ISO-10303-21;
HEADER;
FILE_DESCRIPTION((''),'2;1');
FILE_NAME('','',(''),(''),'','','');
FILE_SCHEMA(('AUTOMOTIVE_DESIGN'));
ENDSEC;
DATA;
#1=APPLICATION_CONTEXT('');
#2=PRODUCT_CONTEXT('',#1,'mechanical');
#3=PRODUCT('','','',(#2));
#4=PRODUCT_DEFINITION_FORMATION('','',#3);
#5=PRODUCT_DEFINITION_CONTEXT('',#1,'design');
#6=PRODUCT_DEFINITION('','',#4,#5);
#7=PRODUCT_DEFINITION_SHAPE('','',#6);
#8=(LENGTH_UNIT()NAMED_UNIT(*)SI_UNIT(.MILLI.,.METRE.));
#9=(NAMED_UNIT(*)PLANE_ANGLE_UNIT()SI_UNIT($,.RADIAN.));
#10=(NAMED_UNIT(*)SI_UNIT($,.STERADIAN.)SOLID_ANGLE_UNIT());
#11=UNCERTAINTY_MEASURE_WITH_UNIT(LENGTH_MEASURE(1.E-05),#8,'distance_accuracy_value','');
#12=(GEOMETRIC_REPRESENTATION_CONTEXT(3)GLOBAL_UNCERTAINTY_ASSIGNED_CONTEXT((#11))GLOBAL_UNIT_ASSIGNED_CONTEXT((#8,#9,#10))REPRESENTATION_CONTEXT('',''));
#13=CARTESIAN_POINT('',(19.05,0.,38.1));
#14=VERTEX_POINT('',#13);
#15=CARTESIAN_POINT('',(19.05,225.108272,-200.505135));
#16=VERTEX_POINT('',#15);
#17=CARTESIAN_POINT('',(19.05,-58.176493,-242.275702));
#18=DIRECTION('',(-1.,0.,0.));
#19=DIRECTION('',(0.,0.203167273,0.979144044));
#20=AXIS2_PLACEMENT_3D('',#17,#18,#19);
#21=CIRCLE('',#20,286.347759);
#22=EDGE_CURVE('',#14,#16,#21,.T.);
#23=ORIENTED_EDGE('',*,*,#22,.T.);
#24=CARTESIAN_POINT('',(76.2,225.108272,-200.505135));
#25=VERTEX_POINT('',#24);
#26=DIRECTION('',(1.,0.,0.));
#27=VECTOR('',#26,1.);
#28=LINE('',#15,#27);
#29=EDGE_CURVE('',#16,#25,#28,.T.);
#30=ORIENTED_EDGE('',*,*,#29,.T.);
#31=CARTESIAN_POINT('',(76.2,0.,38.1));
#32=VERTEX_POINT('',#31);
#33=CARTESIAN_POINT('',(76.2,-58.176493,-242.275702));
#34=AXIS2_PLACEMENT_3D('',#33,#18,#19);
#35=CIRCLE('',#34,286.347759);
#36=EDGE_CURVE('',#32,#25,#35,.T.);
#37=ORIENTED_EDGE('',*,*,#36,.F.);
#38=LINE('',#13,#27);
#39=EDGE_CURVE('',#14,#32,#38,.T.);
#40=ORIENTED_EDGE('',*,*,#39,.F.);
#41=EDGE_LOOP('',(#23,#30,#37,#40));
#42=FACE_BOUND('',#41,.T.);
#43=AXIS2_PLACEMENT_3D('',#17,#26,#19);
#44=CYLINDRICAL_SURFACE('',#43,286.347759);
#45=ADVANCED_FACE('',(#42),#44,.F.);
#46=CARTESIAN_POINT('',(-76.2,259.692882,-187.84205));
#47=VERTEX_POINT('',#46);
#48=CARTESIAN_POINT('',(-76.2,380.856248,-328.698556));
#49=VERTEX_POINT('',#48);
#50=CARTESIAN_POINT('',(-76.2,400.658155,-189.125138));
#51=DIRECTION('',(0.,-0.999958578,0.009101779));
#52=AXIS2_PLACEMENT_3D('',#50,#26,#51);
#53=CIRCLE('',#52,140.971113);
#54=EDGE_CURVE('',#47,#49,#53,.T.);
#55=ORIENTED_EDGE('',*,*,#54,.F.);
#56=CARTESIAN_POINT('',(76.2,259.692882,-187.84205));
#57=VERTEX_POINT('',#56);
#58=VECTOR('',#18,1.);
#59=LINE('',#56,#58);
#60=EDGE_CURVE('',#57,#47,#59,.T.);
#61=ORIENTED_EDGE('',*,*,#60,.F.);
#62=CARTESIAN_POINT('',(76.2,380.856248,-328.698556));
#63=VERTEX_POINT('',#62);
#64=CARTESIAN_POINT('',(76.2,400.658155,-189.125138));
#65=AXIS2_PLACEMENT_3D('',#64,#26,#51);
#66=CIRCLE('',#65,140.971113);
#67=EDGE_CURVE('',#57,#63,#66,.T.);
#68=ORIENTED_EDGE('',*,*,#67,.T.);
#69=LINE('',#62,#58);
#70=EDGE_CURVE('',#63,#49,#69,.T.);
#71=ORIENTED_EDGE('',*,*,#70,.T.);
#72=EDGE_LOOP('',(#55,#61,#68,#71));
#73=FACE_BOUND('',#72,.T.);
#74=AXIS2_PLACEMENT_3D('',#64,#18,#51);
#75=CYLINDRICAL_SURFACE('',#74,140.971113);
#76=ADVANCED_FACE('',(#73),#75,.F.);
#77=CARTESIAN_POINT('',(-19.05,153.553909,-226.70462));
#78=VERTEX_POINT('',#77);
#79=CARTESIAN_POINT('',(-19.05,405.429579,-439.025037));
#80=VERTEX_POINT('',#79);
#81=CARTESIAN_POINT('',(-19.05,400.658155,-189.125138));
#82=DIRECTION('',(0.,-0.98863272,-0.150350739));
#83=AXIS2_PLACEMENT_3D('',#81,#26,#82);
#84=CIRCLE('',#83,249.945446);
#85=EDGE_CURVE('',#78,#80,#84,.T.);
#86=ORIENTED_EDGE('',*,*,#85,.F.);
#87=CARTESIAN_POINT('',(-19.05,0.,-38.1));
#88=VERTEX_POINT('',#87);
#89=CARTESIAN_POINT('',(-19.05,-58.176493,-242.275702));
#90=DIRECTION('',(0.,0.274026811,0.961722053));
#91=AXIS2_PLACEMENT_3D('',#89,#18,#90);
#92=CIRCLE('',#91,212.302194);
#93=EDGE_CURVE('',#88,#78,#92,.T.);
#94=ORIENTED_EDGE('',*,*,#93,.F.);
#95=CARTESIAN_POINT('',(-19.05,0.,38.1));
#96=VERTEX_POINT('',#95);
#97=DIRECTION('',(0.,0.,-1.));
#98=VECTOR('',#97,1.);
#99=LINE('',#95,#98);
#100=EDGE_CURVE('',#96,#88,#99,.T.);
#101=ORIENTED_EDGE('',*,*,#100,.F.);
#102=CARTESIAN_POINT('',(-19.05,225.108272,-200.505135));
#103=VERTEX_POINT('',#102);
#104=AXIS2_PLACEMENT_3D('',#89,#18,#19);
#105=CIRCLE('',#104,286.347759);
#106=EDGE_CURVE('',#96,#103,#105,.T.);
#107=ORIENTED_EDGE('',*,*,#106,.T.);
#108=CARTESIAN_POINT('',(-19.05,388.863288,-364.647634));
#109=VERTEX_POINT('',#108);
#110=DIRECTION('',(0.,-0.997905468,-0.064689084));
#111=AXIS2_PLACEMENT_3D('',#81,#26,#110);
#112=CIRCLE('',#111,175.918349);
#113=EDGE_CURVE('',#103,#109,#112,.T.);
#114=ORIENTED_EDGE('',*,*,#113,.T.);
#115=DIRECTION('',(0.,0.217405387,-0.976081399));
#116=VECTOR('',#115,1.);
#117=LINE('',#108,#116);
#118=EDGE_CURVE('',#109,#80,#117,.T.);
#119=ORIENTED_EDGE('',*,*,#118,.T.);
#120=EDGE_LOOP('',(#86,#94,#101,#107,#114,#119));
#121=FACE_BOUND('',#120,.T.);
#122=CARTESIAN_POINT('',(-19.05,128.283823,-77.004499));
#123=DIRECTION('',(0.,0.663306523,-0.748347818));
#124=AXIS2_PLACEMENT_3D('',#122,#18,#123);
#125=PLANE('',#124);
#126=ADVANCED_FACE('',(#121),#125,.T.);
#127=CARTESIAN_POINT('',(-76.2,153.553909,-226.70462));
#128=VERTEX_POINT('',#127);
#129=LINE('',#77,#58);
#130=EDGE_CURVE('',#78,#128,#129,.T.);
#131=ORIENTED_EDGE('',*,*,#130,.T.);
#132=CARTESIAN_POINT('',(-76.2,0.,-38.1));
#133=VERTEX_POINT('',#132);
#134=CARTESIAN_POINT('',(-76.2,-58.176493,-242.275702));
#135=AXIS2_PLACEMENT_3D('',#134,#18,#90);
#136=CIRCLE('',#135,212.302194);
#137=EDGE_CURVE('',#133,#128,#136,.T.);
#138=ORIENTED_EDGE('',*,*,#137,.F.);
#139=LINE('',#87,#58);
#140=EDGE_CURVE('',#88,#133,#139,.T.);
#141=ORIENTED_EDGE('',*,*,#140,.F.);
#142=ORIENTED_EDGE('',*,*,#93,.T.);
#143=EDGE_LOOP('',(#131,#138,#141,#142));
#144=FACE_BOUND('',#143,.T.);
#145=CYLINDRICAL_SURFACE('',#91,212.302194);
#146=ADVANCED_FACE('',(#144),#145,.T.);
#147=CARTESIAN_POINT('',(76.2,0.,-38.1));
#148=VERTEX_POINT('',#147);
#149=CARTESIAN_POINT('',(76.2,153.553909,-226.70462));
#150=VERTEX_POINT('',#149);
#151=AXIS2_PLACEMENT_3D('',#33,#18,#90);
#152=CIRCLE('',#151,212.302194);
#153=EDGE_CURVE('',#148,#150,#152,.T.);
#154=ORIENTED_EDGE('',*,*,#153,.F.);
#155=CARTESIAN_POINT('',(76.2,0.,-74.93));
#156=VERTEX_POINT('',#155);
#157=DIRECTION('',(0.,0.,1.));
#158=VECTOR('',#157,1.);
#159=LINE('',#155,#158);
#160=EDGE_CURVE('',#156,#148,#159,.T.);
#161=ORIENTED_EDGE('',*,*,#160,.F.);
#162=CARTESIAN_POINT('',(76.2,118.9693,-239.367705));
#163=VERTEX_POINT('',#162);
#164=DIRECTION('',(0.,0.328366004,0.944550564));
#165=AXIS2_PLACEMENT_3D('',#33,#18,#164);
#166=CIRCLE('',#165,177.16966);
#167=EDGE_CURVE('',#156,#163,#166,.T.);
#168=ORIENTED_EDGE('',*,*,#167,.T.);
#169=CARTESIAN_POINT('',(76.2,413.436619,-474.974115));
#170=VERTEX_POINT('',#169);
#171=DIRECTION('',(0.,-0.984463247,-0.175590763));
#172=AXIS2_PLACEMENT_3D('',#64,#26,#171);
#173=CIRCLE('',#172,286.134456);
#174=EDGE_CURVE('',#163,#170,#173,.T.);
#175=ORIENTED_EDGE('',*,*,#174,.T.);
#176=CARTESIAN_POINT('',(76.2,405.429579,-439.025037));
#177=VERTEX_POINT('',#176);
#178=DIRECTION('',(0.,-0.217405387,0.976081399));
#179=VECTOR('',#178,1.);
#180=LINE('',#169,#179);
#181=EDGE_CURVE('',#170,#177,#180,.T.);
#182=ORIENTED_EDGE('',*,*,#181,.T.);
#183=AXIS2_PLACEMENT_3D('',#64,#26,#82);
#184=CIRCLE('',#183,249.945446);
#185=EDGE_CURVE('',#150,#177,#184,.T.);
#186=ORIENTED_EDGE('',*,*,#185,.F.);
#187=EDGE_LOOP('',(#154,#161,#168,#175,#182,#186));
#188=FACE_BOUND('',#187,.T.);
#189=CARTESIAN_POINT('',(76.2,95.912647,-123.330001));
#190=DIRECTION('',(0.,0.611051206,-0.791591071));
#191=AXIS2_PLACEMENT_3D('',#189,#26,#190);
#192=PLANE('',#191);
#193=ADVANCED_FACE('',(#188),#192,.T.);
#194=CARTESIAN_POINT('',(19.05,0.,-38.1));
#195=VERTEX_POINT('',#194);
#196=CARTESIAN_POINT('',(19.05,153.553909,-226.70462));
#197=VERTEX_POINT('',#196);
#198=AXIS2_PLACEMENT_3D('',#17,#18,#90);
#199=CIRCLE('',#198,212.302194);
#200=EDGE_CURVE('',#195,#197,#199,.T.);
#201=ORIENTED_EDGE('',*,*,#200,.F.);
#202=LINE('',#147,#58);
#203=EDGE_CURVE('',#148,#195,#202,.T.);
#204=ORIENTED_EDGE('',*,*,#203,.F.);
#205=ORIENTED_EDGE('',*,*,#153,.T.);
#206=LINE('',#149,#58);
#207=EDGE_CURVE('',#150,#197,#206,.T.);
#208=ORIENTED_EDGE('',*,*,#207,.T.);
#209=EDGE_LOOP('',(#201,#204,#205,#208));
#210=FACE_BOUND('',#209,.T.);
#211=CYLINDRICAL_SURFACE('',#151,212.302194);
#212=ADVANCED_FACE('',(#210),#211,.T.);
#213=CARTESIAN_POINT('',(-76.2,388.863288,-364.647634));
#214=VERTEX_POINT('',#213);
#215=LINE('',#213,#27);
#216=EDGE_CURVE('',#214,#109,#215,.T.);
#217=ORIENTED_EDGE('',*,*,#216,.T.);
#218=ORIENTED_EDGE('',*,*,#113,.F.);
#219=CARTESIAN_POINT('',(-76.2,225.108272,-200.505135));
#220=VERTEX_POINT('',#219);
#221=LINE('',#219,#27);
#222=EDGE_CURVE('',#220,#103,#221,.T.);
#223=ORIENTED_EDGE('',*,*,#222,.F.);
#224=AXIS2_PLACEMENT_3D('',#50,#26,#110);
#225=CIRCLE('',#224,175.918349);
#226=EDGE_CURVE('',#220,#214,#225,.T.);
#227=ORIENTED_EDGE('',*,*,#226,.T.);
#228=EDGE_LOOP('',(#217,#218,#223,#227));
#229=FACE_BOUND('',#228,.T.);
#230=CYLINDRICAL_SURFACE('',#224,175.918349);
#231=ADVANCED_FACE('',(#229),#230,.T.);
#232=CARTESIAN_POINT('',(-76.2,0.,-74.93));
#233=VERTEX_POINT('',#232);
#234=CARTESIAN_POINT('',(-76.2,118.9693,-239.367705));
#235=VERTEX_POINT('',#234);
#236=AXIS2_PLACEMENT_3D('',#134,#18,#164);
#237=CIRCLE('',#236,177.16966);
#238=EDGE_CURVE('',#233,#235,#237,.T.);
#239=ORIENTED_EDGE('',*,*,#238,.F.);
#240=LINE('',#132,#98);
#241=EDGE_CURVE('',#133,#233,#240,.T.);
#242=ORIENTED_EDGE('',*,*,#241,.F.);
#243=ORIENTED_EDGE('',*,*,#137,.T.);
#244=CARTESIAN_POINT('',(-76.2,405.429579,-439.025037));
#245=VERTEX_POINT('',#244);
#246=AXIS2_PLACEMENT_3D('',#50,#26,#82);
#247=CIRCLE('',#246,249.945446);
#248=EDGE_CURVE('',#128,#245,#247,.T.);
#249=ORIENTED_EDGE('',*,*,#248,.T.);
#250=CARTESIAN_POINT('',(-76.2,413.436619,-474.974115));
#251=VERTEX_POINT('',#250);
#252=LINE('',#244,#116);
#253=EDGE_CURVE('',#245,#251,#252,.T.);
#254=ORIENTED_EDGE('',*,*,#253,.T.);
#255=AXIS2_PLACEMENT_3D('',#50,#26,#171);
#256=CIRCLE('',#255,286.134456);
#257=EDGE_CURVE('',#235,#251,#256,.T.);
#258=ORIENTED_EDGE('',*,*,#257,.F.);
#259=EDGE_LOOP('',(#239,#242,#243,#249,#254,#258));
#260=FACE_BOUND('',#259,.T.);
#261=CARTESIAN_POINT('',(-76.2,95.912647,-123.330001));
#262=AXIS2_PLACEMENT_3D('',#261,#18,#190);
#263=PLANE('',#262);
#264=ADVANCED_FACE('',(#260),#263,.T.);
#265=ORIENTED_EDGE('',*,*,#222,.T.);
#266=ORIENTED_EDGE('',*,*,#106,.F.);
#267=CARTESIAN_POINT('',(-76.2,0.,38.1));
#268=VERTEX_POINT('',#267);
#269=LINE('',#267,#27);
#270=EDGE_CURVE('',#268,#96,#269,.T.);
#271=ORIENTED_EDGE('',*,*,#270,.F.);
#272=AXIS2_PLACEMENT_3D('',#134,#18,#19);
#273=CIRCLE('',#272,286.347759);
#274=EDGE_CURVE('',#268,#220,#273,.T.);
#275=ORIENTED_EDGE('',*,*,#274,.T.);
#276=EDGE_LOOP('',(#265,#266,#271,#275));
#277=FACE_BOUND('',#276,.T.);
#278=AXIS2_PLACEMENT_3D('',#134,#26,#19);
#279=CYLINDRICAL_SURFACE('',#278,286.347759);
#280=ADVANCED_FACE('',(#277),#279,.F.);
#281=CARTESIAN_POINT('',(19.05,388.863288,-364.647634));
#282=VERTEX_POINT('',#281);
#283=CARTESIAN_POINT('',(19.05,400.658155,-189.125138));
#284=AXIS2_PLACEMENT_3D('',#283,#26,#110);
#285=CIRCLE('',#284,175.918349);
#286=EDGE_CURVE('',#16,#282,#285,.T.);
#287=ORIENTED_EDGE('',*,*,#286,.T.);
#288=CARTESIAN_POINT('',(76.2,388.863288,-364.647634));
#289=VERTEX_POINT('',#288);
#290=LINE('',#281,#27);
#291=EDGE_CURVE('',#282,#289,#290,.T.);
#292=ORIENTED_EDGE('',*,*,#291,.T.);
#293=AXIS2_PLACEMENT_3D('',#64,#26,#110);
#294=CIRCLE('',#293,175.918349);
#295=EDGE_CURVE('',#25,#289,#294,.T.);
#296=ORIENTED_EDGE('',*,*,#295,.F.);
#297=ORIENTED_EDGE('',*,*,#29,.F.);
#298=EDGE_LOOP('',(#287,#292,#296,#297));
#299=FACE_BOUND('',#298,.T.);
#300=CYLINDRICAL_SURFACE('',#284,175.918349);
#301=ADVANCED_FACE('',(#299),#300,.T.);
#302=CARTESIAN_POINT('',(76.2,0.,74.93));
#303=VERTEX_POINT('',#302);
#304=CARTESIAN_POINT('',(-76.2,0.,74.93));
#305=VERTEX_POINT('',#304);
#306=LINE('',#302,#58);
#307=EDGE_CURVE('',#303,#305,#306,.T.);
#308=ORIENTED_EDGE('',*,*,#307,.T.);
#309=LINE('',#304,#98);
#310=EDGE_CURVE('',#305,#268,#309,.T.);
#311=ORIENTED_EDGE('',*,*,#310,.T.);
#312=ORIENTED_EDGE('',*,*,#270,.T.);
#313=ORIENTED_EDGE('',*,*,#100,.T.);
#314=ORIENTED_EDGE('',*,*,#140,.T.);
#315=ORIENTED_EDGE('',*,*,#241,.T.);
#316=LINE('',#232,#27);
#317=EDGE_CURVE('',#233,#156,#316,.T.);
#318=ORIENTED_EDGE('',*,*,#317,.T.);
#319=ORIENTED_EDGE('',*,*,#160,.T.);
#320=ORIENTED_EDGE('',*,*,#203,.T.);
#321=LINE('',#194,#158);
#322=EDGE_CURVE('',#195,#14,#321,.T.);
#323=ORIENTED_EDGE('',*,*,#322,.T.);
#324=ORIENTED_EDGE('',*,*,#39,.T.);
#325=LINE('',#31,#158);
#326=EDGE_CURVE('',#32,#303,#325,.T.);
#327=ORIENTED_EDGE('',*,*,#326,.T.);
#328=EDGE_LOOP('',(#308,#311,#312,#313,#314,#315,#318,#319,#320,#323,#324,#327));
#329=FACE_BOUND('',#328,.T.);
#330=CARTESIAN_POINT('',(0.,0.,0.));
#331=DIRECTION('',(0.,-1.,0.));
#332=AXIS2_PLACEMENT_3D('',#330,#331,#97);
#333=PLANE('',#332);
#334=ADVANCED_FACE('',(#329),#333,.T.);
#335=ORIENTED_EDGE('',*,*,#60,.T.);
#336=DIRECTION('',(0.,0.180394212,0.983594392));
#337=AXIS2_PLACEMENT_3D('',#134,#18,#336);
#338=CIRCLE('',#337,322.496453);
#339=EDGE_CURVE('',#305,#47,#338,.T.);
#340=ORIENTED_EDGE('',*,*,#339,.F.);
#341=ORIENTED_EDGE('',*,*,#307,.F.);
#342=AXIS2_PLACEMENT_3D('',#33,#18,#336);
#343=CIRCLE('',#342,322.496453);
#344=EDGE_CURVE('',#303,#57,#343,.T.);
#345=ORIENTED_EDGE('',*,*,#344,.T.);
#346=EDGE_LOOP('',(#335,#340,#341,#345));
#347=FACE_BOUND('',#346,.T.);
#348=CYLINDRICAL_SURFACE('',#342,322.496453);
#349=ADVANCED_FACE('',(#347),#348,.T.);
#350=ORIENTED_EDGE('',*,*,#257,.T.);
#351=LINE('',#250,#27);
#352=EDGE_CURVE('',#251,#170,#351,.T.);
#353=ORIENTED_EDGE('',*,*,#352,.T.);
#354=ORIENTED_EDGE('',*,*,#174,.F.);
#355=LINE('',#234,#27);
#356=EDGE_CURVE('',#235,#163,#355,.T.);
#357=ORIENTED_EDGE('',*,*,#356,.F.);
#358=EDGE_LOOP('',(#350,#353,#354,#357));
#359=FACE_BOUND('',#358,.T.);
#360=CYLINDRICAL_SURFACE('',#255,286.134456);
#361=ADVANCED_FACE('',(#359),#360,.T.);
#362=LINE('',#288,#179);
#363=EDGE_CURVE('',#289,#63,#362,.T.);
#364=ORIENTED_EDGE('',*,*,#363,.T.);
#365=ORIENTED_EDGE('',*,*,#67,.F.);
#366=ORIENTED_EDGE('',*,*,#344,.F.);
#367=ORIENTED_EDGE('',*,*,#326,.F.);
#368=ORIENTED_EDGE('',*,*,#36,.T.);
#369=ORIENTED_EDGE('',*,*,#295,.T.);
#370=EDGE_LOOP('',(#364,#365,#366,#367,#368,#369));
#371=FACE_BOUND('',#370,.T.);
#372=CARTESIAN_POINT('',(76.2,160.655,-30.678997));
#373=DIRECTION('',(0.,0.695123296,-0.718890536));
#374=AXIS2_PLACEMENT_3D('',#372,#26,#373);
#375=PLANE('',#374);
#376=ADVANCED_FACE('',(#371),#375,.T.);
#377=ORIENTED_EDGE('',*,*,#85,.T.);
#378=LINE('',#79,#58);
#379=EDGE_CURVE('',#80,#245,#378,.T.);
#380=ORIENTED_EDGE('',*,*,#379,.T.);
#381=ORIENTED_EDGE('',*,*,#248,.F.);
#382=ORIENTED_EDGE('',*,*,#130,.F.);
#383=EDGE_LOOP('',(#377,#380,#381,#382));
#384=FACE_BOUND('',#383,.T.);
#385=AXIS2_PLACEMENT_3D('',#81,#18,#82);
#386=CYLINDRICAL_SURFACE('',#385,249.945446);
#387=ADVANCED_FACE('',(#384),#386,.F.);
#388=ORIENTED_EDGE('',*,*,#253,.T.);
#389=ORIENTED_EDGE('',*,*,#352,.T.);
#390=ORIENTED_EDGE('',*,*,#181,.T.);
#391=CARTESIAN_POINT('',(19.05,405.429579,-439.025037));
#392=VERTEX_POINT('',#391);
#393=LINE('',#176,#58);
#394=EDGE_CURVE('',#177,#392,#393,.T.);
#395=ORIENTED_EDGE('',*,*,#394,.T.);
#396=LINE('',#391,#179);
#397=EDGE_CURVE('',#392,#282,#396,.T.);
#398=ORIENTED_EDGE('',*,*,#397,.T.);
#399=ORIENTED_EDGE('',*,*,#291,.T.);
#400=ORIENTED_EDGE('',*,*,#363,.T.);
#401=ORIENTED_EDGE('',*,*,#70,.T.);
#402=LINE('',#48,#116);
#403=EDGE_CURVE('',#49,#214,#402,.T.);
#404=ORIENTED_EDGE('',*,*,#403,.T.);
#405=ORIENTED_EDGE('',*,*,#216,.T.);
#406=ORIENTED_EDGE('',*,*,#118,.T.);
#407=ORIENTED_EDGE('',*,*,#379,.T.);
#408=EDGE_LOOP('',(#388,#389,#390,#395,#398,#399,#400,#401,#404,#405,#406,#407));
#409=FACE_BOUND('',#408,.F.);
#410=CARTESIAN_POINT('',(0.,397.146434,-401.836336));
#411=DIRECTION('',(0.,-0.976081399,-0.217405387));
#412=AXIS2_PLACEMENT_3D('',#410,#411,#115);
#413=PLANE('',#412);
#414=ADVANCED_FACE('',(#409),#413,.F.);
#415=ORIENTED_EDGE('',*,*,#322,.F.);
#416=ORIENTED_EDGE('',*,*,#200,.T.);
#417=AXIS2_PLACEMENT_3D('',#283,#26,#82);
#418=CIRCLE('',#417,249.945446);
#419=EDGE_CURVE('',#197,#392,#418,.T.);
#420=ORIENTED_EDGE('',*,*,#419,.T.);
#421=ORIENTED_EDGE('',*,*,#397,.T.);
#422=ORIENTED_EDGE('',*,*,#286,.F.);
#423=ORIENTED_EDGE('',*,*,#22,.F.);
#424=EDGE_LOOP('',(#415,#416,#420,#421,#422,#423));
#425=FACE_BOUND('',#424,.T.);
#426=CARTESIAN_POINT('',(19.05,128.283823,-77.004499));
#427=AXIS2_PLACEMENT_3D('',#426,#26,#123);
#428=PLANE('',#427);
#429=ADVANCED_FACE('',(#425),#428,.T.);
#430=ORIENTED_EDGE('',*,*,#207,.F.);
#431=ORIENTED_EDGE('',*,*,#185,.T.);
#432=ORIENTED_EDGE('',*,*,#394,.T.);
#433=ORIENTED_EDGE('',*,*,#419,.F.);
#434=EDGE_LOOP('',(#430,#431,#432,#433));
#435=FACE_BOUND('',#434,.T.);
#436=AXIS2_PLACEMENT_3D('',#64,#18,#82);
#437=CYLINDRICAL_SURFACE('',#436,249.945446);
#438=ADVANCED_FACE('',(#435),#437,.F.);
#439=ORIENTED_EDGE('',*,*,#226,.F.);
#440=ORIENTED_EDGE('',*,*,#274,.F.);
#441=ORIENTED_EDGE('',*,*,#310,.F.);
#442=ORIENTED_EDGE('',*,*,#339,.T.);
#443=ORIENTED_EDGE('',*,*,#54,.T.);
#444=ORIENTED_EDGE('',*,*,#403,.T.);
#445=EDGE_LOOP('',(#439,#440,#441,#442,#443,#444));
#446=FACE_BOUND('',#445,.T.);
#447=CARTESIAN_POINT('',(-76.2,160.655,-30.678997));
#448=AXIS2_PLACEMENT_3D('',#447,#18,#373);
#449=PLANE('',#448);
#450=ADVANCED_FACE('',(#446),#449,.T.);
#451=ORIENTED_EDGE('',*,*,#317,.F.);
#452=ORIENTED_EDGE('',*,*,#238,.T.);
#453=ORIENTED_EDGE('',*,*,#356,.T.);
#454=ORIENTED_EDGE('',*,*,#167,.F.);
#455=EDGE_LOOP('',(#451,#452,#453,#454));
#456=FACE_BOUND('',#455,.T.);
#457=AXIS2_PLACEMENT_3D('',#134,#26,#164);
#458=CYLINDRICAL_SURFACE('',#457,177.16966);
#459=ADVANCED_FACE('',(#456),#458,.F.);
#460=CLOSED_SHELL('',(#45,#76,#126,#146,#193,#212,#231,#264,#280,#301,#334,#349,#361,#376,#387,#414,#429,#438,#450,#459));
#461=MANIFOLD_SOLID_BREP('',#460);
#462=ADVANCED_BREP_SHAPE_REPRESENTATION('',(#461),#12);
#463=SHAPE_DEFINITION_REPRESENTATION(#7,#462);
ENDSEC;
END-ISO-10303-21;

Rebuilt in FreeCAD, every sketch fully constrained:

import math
import FreeCAD as App
import Part
import Sketcher
Q = App.Units.Quantity


def add_polygon(sketch, points):
    """Adds a closed chain of lines whose ends are joined by coincident constraints."""
    first, n = sketch.GeometryCount, len(points)
    for a, b in zip(points, points[1:] + points[:1]):
        sketch.addGeometry(Part.LineSegment(App.Vector(*a, 0), App.Vector(*b, 0)), False)
    for i in range(n):
        sketch.addConstraint(Sketcher.Constraint("Coincident", first + i, 2, first + (i + 1) % n, 1))

doc = App.newDocument("Part")
body = doc.addObject("PartDesign::Body", "Body")

sketch1 = body.newObject("Sketcher::SketchObject", "Sketch")
sketch1.AttachmentSupport = (doc.getObject("XZ_Plane"), [""])
sketch1.MapMode = "FlatFace"
add_polygon(sketch1, [(76, 75), (-76, 75), (-76, 38), (-19, 38), (-19, -38), (-76, -38), (-76, -75), (76, -75), (76, -38), (19, -38), (19, 38), (76, 38)])
sketch1.addConstraint([
    Sketcher.Constraint("Horizontal", 0),
    Sketcher.Constraint("Vertical", 1),
    Sketcher.Constraint("Horizontal", 2),
    Sketcher.Constraint("Vertical", 3),
    Sketcher.Constraint("Horizontal", 4),
    Sketcher.Constraint("Vertical", 5),
    Sketcher.Constraint("Horizontal", 6),
    Sketcher.Constraint("Vertical", 7),
    Sketcher.Constraint("Horizontal", 8),
    Sketcher.Constraint("Vertical", 9),
    Sketcher.Constraint("Horizontal", 10),
    Sketcher.Constraint("Vertical", 11),
    Sketcher.Constraint("Symmetric", 0, 2, 6, 2, -1, 1),
    Sketcher.Constraint("Symmetric", 2, 2, 8, 2, -1, 1),
    Sketcher.Constraint("Symmetric", 4, 2, 10, 2, -1, 1),
    Sketcher.Constraint("Symmetric", 4, 2, 7, 2, -2),
    Sketcher.Constraint("DistanceX", 0, 2, 0, 1, Q("6 in")),
    Sketcher.Constraint("DistanceY", 3, 2, 3, 1, Q("3 in")),
    Sketcher.Constraint("DistanceX", 2, 1, 2, 2, Q("2.25 in")),
    Sketcher.Constraint("DistanceY", 1, 2, 1, 1, Q("1.45 in")),
])

sketch2 = body.newObject("Sketcher::SketchObject", "Sketch001")
sketch2.AttachmentSupport = (doc.getObject("YZ_Plane"), [""])
sketch2.MapMode = "FlatFace"
sketch2.addGeometry([
    Part.ArcOfCircle(Part.Circle(App.Vector(-58, -242, 0), App.Vector(0, 0, 1), 249), math.radians(7), math.radians(76)),
    Part.ArcOfCircle(Part.Circle(App.Vector(401, -189, 0), App.Vector(0, 0, 1), 213), math.radians(-173), math.radians(-91)),
], False)
sketch2.addConstraint([
    Sketcher.Constraint("Tangent", 0, 1, 1, 1),
    Sketcher.Constraint("Coincident", 0, 2, -1, 1),
    Sketcher.Constraint("Radius", 0, Q("249.162638 mm")),
    Sketcher.Constraint("Radius", 1, Q("212.740184 mm")),
    Sketcher.Constraint("DistanceX", -1, 1, 0, 1, Q("189.331091 mm")),
    Sketcher.Constraint("DistanceX", 0, 3, 1, 3, Q("458.834648 mm")),
    Sketcher.Constraint("DistanceX", 1, 2, 1, 3, Q("3.511722 mm")),
])
doc.recompute()

additivepipe = body.newObject("PartDesign::AdditivePipe", "AdditivePipe")
additivepipe.Profile = sketch1
additivepipe.Spine = (sketch2, ["Edge1", "Edge2"])

doc.recompute()
